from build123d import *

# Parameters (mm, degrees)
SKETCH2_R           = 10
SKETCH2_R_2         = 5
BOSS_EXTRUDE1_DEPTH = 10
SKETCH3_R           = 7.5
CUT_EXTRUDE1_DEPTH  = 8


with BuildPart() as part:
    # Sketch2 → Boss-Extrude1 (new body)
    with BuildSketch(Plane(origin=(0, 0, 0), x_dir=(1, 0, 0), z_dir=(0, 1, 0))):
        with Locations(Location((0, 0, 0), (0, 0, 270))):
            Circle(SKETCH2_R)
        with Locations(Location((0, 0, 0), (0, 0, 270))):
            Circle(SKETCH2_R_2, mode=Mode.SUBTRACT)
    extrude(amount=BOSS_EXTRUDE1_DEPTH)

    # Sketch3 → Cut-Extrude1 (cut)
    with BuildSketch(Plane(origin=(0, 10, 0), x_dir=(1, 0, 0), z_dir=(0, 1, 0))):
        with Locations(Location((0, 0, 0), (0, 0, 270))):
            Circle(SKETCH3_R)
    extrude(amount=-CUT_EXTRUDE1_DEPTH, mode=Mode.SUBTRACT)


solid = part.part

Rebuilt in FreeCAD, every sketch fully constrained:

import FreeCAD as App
import Part
import Sketcher
from FreeCAD import Vector

doc = App.newDocument("Part")
params = doc.addObject("Spreadsheet::Sheet", "Params")
for row, (alias, value) in enumerate([
    ("sketch1_diameter", "20 mm"),
    ("sketch1_diameter2", "10 mm"),
    ("pad1_length", "10 mm"),
    ("sketch2_diameter", "15 mm"),
    ("pocket1_length", "8 mm"),
], start=1):
    params.set(f"A{row}", alias)
    params.set(f"B{row}", "=" + value)
    params.setAlias(f"B{row}", alias)

body = doc.addObject("PartDesign::Body", "Body")

# Sketch on XZ plane
sketch1 = body.newObject("Sketcher::SketchObject", "Sketch")
sketch1.AttachmentSupport = (doc.getObject("XZ_Plane"), [""])
sketch1.MapMode = "FlatFace"
sketch1.addGeometry([
    Part.Circle(Vector(0, 0, 0), Vector(0, 0, 1), 10),
    Part.Circle(Vector(0, 0, 0), Vector(0, 0, 1), 5),
], False)
sketch1.addConstraint([
    Sketcher.Constraint("Coincident", 0, 3, -1, 1),
    Sketcher.Constraint("Coincident", 1, 3, -1, 1),
    Sketcher.Constraint("Diameter", 0, 20.0),
    Sketcher.Constraint("Diameter", 1, 10.0),
])
sketch1.setExpression("Constraints[2]", "Params.sketch1_diameter")
sketch1.setExpression("Constraints[3]", "Params.sketch1_diameter2")
pad1 = body.newObject("PartDesign::Pad", "Pad")
pad1.Profile = sketch1
pad1.setExpression("Length", "Params.pad1_length")
pad1.Reversed = True

# Sketch on XZ plane
sketch2 = body.newObject("Sketcher::SketchObject", "Sketch001")
sketch2.AttachmentSupport = (doc.getObject("XZ_Plane"), [""])
sketch2.MapMode = "FlatFace"
sketch2.AttachmentOffset = App.Placement(Vector(0, 0, -10), App.Rotation())
sketch2.addGeometry(Part.Circle(Vector(0, 0, 0), Vector(0, 0, 1), 7.5), False)
sketch2.addConstraint([
    Sketcher.Constraint("Coincident", 0, 3, -1, 1),
    Sketcher.Constraint("Diameter", 0, 15.0),
])
sketch2.setExpression("Constraints[1]", "Params.sketch2_diameter")
pocket1 = body.newObject("PartDesign::Pocket", "Pocket")
pocket1.Profile = sketch2
pocket1.setExpression("Length", "Params.pocket1_length")
pocket1.Reversed = True

doc.recompute()
